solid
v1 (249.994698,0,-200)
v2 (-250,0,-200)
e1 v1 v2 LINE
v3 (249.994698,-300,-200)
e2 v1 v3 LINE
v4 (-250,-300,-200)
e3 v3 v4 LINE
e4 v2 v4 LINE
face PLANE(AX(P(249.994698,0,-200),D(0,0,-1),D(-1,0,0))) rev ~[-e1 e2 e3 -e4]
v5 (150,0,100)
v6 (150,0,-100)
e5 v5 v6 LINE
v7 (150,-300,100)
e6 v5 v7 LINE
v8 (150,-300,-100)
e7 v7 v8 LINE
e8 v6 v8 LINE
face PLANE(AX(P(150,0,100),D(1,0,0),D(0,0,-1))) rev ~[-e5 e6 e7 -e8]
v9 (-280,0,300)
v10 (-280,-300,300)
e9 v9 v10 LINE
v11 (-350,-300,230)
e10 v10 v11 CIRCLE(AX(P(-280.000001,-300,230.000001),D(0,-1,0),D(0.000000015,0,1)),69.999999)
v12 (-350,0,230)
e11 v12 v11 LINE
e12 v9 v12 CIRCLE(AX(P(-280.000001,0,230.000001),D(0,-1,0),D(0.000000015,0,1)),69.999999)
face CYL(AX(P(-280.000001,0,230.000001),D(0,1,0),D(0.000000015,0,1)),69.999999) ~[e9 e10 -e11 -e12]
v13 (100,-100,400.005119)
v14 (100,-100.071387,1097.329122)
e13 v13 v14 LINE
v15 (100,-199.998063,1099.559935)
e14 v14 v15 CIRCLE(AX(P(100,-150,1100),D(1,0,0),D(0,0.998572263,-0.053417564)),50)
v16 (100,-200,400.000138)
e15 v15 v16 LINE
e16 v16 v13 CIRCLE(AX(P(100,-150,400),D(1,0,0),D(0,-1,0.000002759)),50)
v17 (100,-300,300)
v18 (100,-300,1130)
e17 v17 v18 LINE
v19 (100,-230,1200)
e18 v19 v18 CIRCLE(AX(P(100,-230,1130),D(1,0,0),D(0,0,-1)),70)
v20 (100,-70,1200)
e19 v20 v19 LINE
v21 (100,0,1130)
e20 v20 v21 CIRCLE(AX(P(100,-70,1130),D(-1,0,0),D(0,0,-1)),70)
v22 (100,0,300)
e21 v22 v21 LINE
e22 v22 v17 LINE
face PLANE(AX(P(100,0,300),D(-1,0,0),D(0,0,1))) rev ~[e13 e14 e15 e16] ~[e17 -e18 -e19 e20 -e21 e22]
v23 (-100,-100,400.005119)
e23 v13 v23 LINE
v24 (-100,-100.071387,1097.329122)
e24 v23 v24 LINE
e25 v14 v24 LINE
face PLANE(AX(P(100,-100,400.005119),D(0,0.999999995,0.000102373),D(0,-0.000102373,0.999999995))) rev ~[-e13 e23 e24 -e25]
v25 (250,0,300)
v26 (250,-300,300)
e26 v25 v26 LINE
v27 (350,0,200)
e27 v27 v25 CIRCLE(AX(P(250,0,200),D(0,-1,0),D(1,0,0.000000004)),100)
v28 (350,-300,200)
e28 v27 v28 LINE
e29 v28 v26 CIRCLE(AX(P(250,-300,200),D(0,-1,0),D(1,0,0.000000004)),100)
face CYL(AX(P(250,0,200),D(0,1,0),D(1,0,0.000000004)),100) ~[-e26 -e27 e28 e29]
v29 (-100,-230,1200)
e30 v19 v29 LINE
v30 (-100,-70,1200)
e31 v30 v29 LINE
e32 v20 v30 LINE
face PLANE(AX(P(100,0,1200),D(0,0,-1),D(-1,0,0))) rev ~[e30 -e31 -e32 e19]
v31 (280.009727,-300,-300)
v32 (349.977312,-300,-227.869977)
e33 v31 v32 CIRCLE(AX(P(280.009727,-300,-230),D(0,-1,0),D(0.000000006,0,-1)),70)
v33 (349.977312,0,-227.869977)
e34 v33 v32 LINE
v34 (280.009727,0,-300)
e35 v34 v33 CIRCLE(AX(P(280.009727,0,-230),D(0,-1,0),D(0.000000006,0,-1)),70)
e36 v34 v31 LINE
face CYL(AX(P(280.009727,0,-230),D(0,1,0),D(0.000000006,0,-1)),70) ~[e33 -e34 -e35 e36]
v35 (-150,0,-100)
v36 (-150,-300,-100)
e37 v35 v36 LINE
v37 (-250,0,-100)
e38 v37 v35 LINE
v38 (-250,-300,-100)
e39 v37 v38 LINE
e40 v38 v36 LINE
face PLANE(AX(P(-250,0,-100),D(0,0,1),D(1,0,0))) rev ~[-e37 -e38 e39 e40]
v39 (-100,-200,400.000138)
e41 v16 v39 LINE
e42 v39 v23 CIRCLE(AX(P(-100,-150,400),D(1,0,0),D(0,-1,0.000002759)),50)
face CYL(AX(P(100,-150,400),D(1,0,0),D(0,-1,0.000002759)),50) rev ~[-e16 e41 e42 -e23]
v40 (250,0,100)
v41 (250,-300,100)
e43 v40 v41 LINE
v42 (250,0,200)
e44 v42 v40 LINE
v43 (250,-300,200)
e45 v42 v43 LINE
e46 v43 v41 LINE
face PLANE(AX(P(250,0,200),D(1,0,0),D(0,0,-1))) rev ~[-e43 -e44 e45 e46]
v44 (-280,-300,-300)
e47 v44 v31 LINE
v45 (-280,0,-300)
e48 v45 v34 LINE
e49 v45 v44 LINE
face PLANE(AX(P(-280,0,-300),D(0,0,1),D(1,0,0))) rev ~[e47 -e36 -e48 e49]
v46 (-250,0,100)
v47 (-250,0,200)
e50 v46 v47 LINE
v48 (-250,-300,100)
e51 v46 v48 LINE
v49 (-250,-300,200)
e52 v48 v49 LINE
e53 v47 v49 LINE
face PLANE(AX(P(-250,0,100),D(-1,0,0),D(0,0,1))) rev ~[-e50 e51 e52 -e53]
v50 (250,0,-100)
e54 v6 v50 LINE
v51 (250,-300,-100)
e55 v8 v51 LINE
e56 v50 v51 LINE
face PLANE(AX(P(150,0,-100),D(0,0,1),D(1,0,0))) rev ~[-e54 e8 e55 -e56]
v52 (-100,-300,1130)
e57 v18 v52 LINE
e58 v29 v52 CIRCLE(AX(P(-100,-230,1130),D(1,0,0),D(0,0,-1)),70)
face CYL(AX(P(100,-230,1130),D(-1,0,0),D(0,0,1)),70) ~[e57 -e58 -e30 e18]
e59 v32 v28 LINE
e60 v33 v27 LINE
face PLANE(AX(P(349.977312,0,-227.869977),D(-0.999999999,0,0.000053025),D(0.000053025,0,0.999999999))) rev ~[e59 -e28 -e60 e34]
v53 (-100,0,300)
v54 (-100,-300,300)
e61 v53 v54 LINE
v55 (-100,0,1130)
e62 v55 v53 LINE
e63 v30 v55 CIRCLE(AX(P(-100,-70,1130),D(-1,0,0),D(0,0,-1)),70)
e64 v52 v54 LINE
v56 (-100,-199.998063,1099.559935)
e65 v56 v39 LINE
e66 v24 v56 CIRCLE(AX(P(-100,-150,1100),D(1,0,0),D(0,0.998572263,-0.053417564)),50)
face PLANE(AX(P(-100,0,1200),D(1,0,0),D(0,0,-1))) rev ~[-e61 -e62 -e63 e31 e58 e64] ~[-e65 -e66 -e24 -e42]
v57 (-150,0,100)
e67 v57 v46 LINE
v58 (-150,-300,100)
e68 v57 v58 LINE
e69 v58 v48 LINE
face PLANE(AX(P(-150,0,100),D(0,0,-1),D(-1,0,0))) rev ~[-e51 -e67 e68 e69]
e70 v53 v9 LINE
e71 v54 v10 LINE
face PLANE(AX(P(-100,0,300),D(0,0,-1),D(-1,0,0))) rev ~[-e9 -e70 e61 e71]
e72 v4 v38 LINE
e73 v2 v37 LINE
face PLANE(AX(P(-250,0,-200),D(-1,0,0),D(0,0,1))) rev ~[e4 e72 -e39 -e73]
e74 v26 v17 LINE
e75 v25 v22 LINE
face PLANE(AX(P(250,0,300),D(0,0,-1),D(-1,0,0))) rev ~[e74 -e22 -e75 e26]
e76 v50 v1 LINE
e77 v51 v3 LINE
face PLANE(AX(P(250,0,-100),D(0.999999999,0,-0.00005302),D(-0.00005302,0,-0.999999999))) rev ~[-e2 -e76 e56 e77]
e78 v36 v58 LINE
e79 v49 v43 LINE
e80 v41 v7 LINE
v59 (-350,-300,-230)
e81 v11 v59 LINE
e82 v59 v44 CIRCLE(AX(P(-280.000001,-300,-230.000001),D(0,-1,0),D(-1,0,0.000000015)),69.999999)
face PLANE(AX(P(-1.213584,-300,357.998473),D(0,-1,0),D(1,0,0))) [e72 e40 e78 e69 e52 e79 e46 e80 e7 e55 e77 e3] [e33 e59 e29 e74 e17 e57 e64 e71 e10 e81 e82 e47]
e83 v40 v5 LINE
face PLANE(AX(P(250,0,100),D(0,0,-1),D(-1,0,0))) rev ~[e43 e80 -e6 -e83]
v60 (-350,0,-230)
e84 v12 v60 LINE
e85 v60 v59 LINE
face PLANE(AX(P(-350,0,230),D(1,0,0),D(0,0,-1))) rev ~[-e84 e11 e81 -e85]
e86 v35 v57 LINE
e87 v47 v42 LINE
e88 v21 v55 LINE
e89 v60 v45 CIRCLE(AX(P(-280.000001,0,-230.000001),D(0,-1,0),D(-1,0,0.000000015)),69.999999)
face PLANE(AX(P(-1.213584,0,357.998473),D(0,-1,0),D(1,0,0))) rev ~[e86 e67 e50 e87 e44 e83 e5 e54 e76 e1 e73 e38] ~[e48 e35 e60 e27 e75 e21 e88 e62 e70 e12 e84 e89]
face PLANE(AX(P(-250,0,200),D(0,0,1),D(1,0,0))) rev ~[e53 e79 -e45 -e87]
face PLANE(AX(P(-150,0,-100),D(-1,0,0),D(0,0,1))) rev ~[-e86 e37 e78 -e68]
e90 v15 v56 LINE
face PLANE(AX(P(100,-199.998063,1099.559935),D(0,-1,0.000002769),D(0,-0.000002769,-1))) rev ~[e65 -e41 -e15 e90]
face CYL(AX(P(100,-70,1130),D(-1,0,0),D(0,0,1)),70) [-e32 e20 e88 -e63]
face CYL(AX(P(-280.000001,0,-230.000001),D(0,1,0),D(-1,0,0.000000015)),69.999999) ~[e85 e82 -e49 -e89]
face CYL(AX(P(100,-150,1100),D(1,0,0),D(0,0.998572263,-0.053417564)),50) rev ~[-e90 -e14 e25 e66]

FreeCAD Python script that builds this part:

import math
import FreeCAD as App
import Part
import Sketcher


def edges_at(feature, points):
    """Names of the edges that pass closest to the given points."""
    edges = feature.Shape.Edges
    near = lambda p: min(range(len(edges)), key=lambda i: edges[i].distToShape(Part.Vertex(*p))[0])
    return sorted({f"Edge{near(p) + 1}" for p in points})

doc = App.newDocument("Part")
body = doc.addObject("PartDesign::Body", "Body")

sketch1 = body.newObject("Sketcher::SketchObject", "Sketch")
sketch1.AttachmentSupport = (doc.getObject("XZ_Plane"), [""])
sketch1.MapMode = "FlatFace"
sketch1.addGeometry(Part.LineSegment(App.Vector(-280, -300, 0), App.Vector(280.009727, -300, 0)), False)
sketch1.addGeometry(Part.ArcOfCircle(Part.Circle(App.Vector(280.009727, -230, 0), App.Vector(0, 0, 1), 70), math.radians(-90), math.radians(1.743717)), False)
sketch1.addGeometry(Part.LineSegment(App.Vector(349.977312, -227.869977, 0), App.Vector(350, 200, 0)), False)
sketch1.addGeometry(Part.ArcOfCircle(Part.Circle(App.Vector(250, 200, 0), App.Vector(0, 0, 1), 100), math.radians(0), math.radians(90)), False)
sketch1.addGeometry(Part.LineSegment(App.Vector(250, 300, 0), App.Vector(100, 300, 0)), False)
sketch1.addGeometry(Part.LineSegment(App.Vector(100, 300, 0), App.Vector(100, 1200, 0)), False)
sketch1.addGeometry(Part.LineSegment(App.Vector(100, 1200, 0), App.Vector(-100, 1200, 0)), False)
sketch1.addGeometry(Part.LineSegment(App.Vector(-100, 1200, 0), App.Vector(-100, 300, 0)), False)
sketch1.addGeometry(Part.LineSegment(App.Vector(-100, 300, 0), App.Vector(-280, 300, 0)), False)
sketch1.addGeometry(Part.ArcOfCircle(Part.Circle(App.Vector(-280.000001, 230.000001, 0), App.Vector(0, 0, 1), 69.999999), math.radians(89.999999), math.radians(180.000001)), False)
sketch1.addGeometry(Part.LineSegment(App.Vector(-350, 230, 0), App.Vector(-350, -230, 0)), False)
sketch1.addGeometry(Part.ArcOfCircle(Part.Circle(App.Vector(-280.000001, -230.000001, 0), App.Vector(0, 0, 1), 69.999999), math.radians(179.999999), math.radians(270.000001)), False)
sketch1.addGeometry(Part.LineSegment(App.Vector(-150, 100, 0), App.Vector(-250, 100, 0)), False)
sketch1.addGeometry(Part.LineSegment(App.Vector(-250, 100, 0), App.Vector(-250, 200, 0)), False)
sketch1.addGeometry(Part.LineSegment(App.Vector(-250, 200, 0), App.Vector(250, 200, 0)), False)
sketch1.addGeometry(Part.LineSegment(App.Vector(250, 200, 0), App.Vector(250, 100, 0)), False)
sketch1.addGeometry(Part.LineSegment(App.Vector(250, 100, 0), App.Vector(150, 100, 0)), False)
sketch1.addGeometry(Part.LineSegment(App.Vector(150, 100, 0), App.Vector(150, -100, 0)), False)
sketch1.addGeometry(Part.LineSegment(App.Vector(150, -100, 0), App.Vector(250, -100, 0)), False)
sketch1.addGeometry(Part.LineSegment(App.Vector(250, -100, 0), App.Vector(249.994698, -200, 0)), False)
sketch1.addGeometry(Part.LineSegment(App.Vector(249.994698, -200, 0), App.Vector(-250, -200, 0)), False)
sketch1.addGeometry(Part.LineSegment(App.Vector(-250, -200, 0), App.Vector(-250, -100, 0)), False)
sketch1.addGeometry(Part.LineSegment(App.Vector(-250, -100, 0), App.Vector(-150, -100, 0)), False)
sketch1.addGeometry(Part.LineSegment(App.Vector(-150, -100, 0), App.Vector(-150, 100, 0)), False)
sketch1.addConstraint(Sketcher.Constraint("Tangent", 0, 2, 1, 1))
sketch1.addConstraint(Sketcher.Constraint("Coincident", 1, 2, 2, 1))
sketch1.addConstraint(Sketcher.Constraint("Coincident", 2, 2, 3, 1))
sketch1.addConstraint(Sketcher.Constraint("Tangent", 3, 2, 4, 1))
sketch1.addConstraint(Sketcher.Constraint("Coincident", 4, 2, 5, 1))
sketch1.addConstraint(Sketcher.Constraint("Coincident", 5, 2, 6, 1))
sketch1.addConstraint(Sketcher.Constraint("Coincident", 6, 2, 7, 1))
sketch1.addConstraint(Sketcher.Constraint("Coincident", 7, 2, 8, 1))
sketch1.addConstraint(Sketcher.Constraint("Tangent", 8, 2, 9, 1))
sketch1.addConstraint(Sketcher.Constraint("Tangent", 9, 2, 10, 1))
sketch1.addConstraint(Sketcher.Constraint("Tangent", 10, 2, 11, 1))
sketch1.addConstraint(Sketcher.Constraint("Tangent", 11, 2, 0, 1))
sketch1.addConstraint(Sketcher.Constraint("Coincident", 12, 2, 13, 1))
sketch1.addConstraint(Sketcher.Constraint("Coincident", 13, 2, 14, 1))
sketch1.addConstraint(Sketcher.Constraint("Coincident", 14, 2, 15, 1))
sketch1.addConstraint(Sketcher.Constraint("Coincident", 15, 2, 16, 1))
sketch1.addConstraint(Sketcher.Constraint("Coincident", 16, 2, 17, 1))
sketch1.addConstraint(Sketcher.Constraint("Coincident", 17, 2, 18, 1))
sketch1.addConstraint(Sketcher.Constraint("Coincident", 18, 2, 19, 1))
sketch1.addConstraint(Sketcher.Constraint("Coincident", 19, 2, 20, 1))
sketch1.addConstraint(Sketcher.Constraint("Coincident", 20, 2, 21, 1))
sketch1.addConstraint(Sketcher.Constraint("Coincident", 21, 2, 22, 1))
sketch1.addConstraint(Sketcher.Constraint("Coincident", 22, 2, 23, 1))
sketch1.addConstraint(Sketcher.Constraint("Coincident", 23, 2, 12, 1))
sketch1.addConstraint(Sketcher.Constraint("Horizontal", 0))
sketch1.addConstraint(Sketcher.Constraint("Horizontal", 4))
sketch1.addConstraint(Sketcher.Constraint("Vertical", 5))
sketch1.addConstraint(Sketcher.Constraint("Horizontal", 6))
sketch1.addConstraint(Sketcher.Constraint("Vertical", 7))
sketch1.addConstraint(Sketcher.Constraint("Horizontal", 8))
sketch1.addConstraint(Sketcher.Constraint("Vertical", 10))
sketch1.addConstraint(Sketcher.Constraint("Horizontal", 12))
sketch1.addConstraint(Sketcher.Constraint("Vertical", 13))
sketch1.addConstraint(Sketcher.Constraint("Horizontal", 14))
sketch1.addConstraint(Sketcher.Constraint("Vertical", 15))
sketch1.addConstraint(Sketcher.Constraint("Horizontal", 16))
sketch1.addConstraint(Sketcher.Constraint("Vertical", 17))
sketch1.addConstraint(Sketcher.Constraint("Horizontal", 18))
sketch1.addConstraint(Sketcher.Constraint("Horizontal", 20))
sketch1.addConstraint(Sketcher.Constraint("Vertical", 21))
sketch1.addConstraint(Sketcher.Constraint("Horizontal", 22))
sketch1.addConstraint(Sketcher.Constraint("Vertical", 23))
sketch1.addConstraint(Sketcher.Constraint("Coincident", 14, 2, 3, 3))
sketch1.addConstraint(Sketcher.Constraint("Equal", 1, 9))
sketch1.addConstraint(Sketcher.Constraint("Equal", 9, 11))
sketch1.addConstraint(Sketcher.Constraint("Symmetric", 12, 2, 18, 2, -1, 1))
sketch1.addConstraint(Sketcher.Constraint("Symmetric", 14, 2, 20, 2, -1, 1))
sketch1.addConstraint(Sketcher.Constraint("Symmetric", 16, 2, 22, 2, -1, 1))
sketch1.addConstraint(Sketcher.Constraint("Symmetric", 4, 2, 7, 2, -2))
sketch1.addConstraint(Sketcher.Constraint("Symmetric", 12, 2, 15, 2, -2))
sketch1.addConstraint(Sketcher.Constraint("Parallel", 2, 19))
sketch1.addConstraint(Sketcher.Constraint("Horizontal", 3, 3, 2, 2))
sketch1.addConstraint(Sketcher.Constraint("Equal", 22, 13))
sketch1.addConstraint(Sketcher.Constraint("Equal", 6, 17))
sketch1.addConstraint(Sketcher.Constraint("Radius", 1, 70.0))
sketch1.addConstraint(Sketcher.Constraint("Radius", 3, 100.0))
sketch1.addConstraint(Sketcher.Constraint("DistanceX", 4, 2, 4, 1, 150.0))
sketch1.addConstraint(Sketcher.Constraint("DistanceX", 6, 2, 6, 1, 200.0))
sketch1.addConstraint(Sketcher.Constraint("DistanceX", 8, 2, 8, 1, 180.0))
sketch1.addConstraint(Sketcher.Constraint("DistanceX", 12, 2, 12, 1, 100.0))
sketch1.addConstraint(Sketcher.Constraint("DistanceY", 5, 1, 5, 2, 900.0))
sketch1.addConstraint(Sketcher.Constraint("DistanceY", 10, 2, 10, 1, 460.0))
sketch1.addConstraint(Sketcher.Constraint("DistanceX", -1, 1, 19, 2, 249.994698))
sketch1.addConstraint(Sketcher.Constraint("DistanceX", 0, 1, 0, 2, 560.009727))
pad1 = body.newObject("PartDesign::Pad", "Pad")
pad1.Profile = sketch1
pad1.Length = 300
doc.recompute()

fillet = body.newObject("PartDesign::Fillet", "Fillet")
fillet.Base = (pad1, edges_at(pad1, [(0, 0, 1200), (0, -300, 1200)]))
fillet.Radius = 70
body2 = doc.addObject("PartDesign::Body", "Body001")

sketch2 = body2.newObject("Sketcher::SketchObject", "Sketch001")
sketch2.AttachmentSupport = (doc.getObject("YZ_Plane001"), [""])
sketch2.MapMode = "FlatFace"
sketch2.AttachmentOffset = App.Placement(App.Vector(0, 0, 100), App.Rotation())
sketch2.addGeometry(Part.LineSegment(App.Vector(-100, 400, 0), App.Vector(-100, 1097, 0)), False)
sketch2.addGeometry(Part.ArcOfCircle(Part.Circle(App.Vector(-150, 1100, 0), App.Vector(0, 0, 1), 50), math.radians(-3), math.radians(181)), False)
sketch2.addGeometry(Part.LineSegment(App.Vector(-200, 1100, 0), App.Vector(-200, 400, 0)), False)
sketch2.addGeometry(Part.ArcOfCircle(Part.Circle(App.Vector(-150, 400, 0), App.Vector(0, 0, 1), 50), math.radians(180), math.radians(360)), False)
sketch2.addConstraint(Sketcher.Constraint("Coincident", 0, 2, 1, 1))
sketch2.addConstraint(Sketcher.Constraint("Coincident", 1, 2, 2, 1))
sketch2.addConstraint(Sketcher.Constraint("Tangent", 2, 2, 3, 1))
sketch2.addConstraint(Sketcher.Constraint("Tangent", 3, 2, 0, 1))
sketch2.addConstraint(Sketcher.Constraint("Equal", 1, 3))
sketch2.addConstraint(Sketcher.Constraint("Vertical", 1, 3, 3, 3))
sketch2.addConstraint(Sketcher.Constraint("Radius", 1, 50.0))
sketch2.addConstraint(Sketcher.Constraint("DistanceX", 1, 3, -1, 1, 150.0))
sketch2.addConstraint(Sketcher.Constraint("DistanceY", -1, 1, 1, 3, 1100.0))
sketch2.addConstraint(Sketcher.Constraint("DistanceY", -1, 1, 3, 3, 400.0))
sketch2.addConstraint(Sketcher.Constraint("DistanceY", -1, 1, 0, 2, 1097.329122))
sketch2.addConstraint(Sketcher.Constraint("Distance", 2, 699.559797))
pad2 = body2.newObject("PartDesign::Pad", "Pad001")
pad2.Profile = sketch2
pad2.Length = 1454
pad2.Reversed = True
doc.recompute()

boolean = body.newObject("PartDesign::Boolean", "Boolean")
boolean.Type = "Cut"
boolean.addObjects([body2])

doc.recompute()
